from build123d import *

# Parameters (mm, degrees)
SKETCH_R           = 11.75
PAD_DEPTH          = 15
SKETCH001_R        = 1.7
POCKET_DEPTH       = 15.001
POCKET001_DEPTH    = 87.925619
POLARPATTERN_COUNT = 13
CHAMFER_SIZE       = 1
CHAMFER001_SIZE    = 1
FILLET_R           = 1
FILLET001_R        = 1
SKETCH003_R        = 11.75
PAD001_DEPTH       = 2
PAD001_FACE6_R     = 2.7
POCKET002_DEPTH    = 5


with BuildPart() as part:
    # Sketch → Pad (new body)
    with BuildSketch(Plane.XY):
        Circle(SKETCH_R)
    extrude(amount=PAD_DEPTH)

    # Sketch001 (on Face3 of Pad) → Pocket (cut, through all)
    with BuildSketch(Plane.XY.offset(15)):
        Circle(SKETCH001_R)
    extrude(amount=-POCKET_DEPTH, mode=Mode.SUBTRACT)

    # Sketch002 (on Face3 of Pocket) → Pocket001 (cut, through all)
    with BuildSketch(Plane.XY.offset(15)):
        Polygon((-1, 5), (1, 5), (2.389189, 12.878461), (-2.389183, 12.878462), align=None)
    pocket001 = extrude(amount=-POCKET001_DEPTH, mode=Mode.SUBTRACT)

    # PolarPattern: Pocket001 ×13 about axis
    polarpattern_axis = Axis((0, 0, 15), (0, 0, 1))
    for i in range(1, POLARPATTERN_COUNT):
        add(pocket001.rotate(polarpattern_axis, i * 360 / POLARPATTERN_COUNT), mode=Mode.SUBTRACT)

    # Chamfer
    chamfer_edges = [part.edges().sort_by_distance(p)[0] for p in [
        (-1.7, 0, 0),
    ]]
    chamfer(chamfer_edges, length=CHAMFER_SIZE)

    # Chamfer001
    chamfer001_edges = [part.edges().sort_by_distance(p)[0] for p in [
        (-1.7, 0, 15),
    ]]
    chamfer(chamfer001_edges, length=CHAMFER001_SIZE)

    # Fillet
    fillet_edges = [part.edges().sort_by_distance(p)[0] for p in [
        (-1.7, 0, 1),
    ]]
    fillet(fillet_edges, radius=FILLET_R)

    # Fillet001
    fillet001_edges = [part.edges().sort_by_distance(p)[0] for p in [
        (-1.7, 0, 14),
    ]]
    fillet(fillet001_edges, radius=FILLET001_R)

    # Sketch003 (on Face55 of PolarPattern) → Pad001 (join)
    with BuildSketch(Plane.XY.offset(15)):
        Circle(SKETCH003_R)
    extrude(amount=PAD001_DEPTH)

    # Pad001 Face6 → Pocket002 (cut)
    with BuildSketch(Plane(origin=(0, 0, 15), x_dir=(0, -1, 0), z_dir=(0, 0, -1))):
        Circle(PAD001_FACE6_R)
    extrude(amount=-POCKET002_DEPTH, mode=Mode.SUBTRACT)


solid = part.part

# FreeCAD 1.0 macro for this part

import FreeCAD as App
import Part
import Sketcher

V = App.Vector
Q = App.Units.Quantity


def edges_at(feature, points):
    """Names of the edges that pass closest to the given points."""
    edges = feature.Shape.Edges
    near = lambda p: min(range(len(edges)), key=lambda i: edges[i].distToShape(Part.Vertex(*p))[0])
    return sorted({f"Edge{near(p) + 1}" for p in points})


def add_polygon(sketch, points):
    """Adds a closed chain of lines whose ends are joined by coincident constraints."""
    first, n = sketch.GeometryCount, len(points)
    for a, b in zip(points, points[1:] + points[:1]):
        sketch.addGeometry(Part.LineSegment(App.Vector(*a, 0), App.Vector(*b, 0)), False)
    for i in range(n):
        sketch.addConstraint(Sketcher.Constraint("Coincident", first + i, 2, first + (i + 1) % n, 1))

doc = App.newDocument("Part")
params = doc.addObject("Spreadsheet::Sheet", "Params")
for row, (alias, value) in enumerate([
    ("sketch1_diameter", "23.5 mm"),
    ("pad1_length", "15 mm"),
    ("sketch2_diameter", "3.4 mm"),
    ("sketch3_width", "2 mm"),
    ("sketch3_length", "8 mm"),
    ("chamfer_size", "1 mm"),
    ("chamfer2_size", "1 mm"),
    ("fillet_radius", "1 mm"),
    ("fillet2_radius", "1 mm"),
    ("sketch4_diameter", "23.5 mm"),
    ("pad2_length", "2 mm"),
    ("sketch5_diameter", "5.4 mm"),
    ("pocket3_length", "5 mm"),
], start=1):
    params.set(f"A{row}", alias)
    params.set(f"B{row}", "=" + value)
    params.setAlias(f"B{row}", alias)

body = doc.addObject("PartDesign::Body", "Body")

sketch1 = body.newObject("Sketcher::SketchObject", "Sketch")
sketch1.AttachmentSupport = (doc.getObject("XY_Plane"), [""])
sketch1.MapMode = "FlatFace"
sketch1.addGeometry(Part.Circle(V(0, 0, 0), V(0, 0, 1), 12), False)
sketch1.addConstraint(Sketcher.Constraint("Coincident", 0, 3, -1, 1))
sketch1.addConstraint(Sketcher.Constraint("Diameter", 0, Q("23.5 mm")))
sketch1.setExpression("Constraints[1]", "Params.sketch1_diameter")
pad1 = body.newObject("PartDesign::Pad", "Pad")
pad1.Profile = sketch1
pad1.setExpression("Length", "Params.pad1_length")

sketch2 = body.newObject("Sketcher::SketchObject", "Sketch001")
sketch2.AttachmentSupport = (doc.getObject("XY_Plane"), [""])
sketch2.MapMode = "FlatFace"
sketch2.AttachmentOffset = App.Placement(V(0, 0, 15), App.Rotation())
sketch2.addGeometry(Part.Circle(V(0, 0, 0), V(0, 0, 1), 1.7), False)
sketch2.addConstraint(Sketcher.Constraint("Coincident", 0, 3, -1, 1))
sketch2.addConstraint(Sketcher.Constraint("Diameter", 0, Q("3.4 mm")))
sketch2.setExpression("Constraints[1]", "Params.sketch2_diameter")
pocket1 = body.newObject("PartDesign::Pocket", "Pocket")
pocket1.Profile = sketch2
pocket1.Type = "ThroughAll"

sketch3 = body.newObject("Sketcher::SketchObject", "Sketch002")
sketch3.AttachmentSupport = (doc.getObject("XY_Plane"), [""])
sketch3.MapMode = "FlatFace"
sketch3.AttachmentOffset = App.Placement(V(0, 0, 15), App.Rotation())
add_polygon(sketch3, [(-1, 5), (1, 5), (2.4, 12.9), (-2.4, 12.9)])
sketch3.addConstraint(Sketcher.Constraint("Horizontal", 0))
sketch3.addConstraint(Sketcher.Constraint("Horizontal", 2))
sketch3.addConstraint(Sketcher.Constraint("Equal", 1, 3))
sketch3.addConstraint(Sketcher.Constraint("DistanceX", 0, 1, 0, 2, Q("2 mm")))
sketch3.addConstraint(Sketcher.Constraint("Angle", 3, Q("-80.000017 deg")))
sketch3.addConstraint(Sketcher.Constraint("Distance", 1, Q("8 mm")))
sketch3.addConstraint(Sketcher.Constraint("DistanceX", -1, 1, 0, 2, Q("1 mm")))
sketch3.addConstraint(Sketcher.Constraint("DistanceY", -1, 1, 0, 2, Q("5 mm")))
sketch3.setExpression("Constraints[7]", "Params.sketch3_width")
sketch3.setExpression("Constraints[9]", "Params.sketch3_length")
pocket2 = body.newObject("PartDesign::Pocket", "Pocket001")
pocket2.Profile = sketch3
pocket2.Type = "ThroughAll"
doc.recompute()

polarpattern = body.newObject("PartDesign::PolarPattern", "PolarPattern")
polarpattern.Originals = [pocket2]
polarpattern.Axis = (doc.getObject("Z_Axis"), [""])
polarpattern.Angle = 360
polarpattern.Occurrences = 13
body.Tip = polarpattern
doc.recompute()

chamfer = body.newObject("PartDesign::Chamfer", "Chamfer")
chamfer.Base = (polarpattern, edges_at(polarpattern, [(-1.7, 0, 0)]))
chamfer.setExpression("Size", "Params.chamfer_size")
doc.recompute()

chamfer2 = body.newObject("PartDesign::Chamfer", "Chamfer001")
chamfer2.Base = (chamfer, edges_at(chamfer, [(-1.7, 0, 15)]))
chamfer2.setExpression("Size", "Params.chamfer2_size")
doc.recompute()

fillet = body.newObject("PartDesign::Fillet", "Fillet")
fillet.Base = (chamfer2, edges_at(chamfer2, [(-1.7, 0, 1)]))
fillet.setExpression("Radius", "Params.fillet_radius")
doc.recompute()

fillet2 = body.newObject("PartDesign::Fillet", "Fillet001")
fillet2.Base = (fillet, edges_at(fillet, [(-1.7, 0, 14)]))
fillet2.setExpression("Radius", "Params.fillet2_radius")

sketch4 = body.newObject("Sketcher::SketchObject", "Sketch003")
sketch4.AttachmentSupport = (doc.getObject("XY_Plane"), [""])
sketch4.MapMode = "FlatFace"
sketch4.AttachmentOffset = App.Placement(V(0, 0, 15), App.Rotation())
sketch4.addGeometry(Part.Circle(V(0, 0, 0), V(0, 0, 1), 12), False)
sketch4.addConstraint(Sketcher.Constraint("Coincident", 0, 3, -1, 1))
sketch4.addConstraint(Sketcher.Constraint("Diameter", 0, Q("23.5 mm")))
sketch4.setExpression("Constraints[1]", "Params.sketch4_diameter")
pad2 = body.newObject("PartDesign::Pad", "Pad001")
pad2.Profile = sketch4
pad2.setExpression("Length", "Params.pad2_length")

sketch5 = body.newObject("Sketcher::SketchObject", "Sketch004")
sketch5.AttachmentSupport = (doc.getObject("XY_Plane"), [""])
sketch5.MapMode = "FlatFace"
sketch5.AttachmentOffset = App.Placement(V(0, 0, 15), App.Rotation())
sketch5.addGeometry(Part.Circle(V(0, 0, 0), V(0, 0, 1), 2.7), False)
sketch5.addConstraint(Sketcher.Constraint("Coincident", 0, 3, -1, 1))
sketch5.addConstraint(Sketcher.Constraint("Diameter", 0, Q("5.4 mm")))
sketch5.setExpression("Constraints[1]", "Params.sketch5_diameter")
pocket3 = body.newObject("PartDesign::Pocket", "Pocket002")
pocket3.Profile = sketch5
pocket3.setExpression("Length", "Params.pocket3_length")
pocket3.Reversed = True

doc.recompute()
